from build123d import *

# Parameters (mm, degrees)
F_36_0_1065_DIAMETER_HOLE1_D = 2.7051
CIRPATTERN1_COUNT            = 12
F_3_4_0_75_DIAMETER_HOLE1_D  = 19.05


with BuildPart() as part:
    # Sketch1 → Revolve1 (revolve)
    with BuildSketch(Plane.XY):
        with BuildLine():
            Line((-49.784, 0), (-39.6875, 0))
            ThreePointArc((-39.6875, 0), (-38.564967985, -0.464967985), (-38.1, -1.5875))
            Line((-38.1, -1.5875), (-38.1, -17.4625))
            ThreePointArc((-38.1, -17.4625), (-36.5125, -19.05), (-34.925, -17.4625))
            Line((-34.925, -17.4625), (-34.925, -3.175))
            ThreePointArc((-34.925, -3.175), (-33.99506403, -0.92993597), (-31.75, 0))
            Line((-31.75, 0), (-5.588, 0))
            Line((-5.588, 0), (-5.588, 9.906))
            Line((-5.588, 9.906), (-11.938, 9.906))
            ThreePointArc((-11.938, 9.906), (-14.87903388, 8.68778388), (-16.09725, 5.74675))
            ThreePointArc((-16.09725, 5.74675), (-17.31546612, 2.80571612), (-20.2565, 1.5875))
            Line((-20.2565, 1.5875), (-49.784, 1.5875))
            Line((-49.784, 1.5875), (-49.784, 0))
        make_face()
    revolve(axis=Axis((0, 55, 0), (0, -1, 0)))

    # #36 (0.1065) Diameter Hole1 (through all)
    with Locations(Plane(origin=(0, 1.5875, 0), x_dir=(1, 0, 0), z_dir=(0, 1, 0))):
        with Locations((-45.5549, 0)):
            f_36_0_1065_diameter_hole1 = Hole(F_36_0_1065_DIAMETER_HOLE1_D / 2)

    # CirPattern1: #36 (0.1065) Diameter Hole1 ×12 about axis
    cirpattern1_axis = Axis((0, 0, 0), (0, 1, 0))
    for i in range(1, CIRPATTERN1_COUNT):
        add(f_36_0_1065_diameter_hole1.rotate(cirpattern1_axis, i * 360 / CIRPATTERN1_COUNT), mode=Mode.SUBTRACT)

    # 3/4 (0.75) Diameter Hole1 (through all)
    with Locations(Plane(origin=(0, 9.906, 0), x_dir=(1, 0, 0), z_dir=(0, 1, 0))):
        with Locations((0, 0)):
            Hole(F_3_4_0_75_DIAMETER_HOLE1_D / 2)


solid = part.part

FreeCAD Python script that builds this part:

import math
import FreeCAD as App
import Part
import Sketcher
from FreeCAD import Vector
Q = App.Units.Quantity

doc = App.newDocument("Part")
body = doc.addObject("PartDesign::Body", "Body")

# Sketch on XY plane
sketch1 = body.newObject("Sketcher::SketchObject", "Sketch")
sketch1.AttachmentSupport = (doc.getObject("XY_Plane"), [""])
sketch1.MapMode = "FlatFace"
sketch1.addGeometry(Part.LineSegment(Vector(-49.784, 0, 0), Vector(-39.6875, 0, 0)), False)
sketch1.addGeometry(Part.ArcOfCircle(Part.Circle(Vector(-39.6875, -1.5875, 0), Vector(0, 0, 1), 1.5875), math.radians(0), math.radians(90)), False)
sketch1.addGeometry(Part.LineSegment(Vector(-38.1, -1.5875, 0), Vector(-38.1, -17.4625, 0)), False)
sketch1.addGeometry(Part.ArcOfCircle(Part.Circle(Vector(-36.5125, -17.4625, 0), Vector(0, 0, 1), 1.5875), math.radians(180), math.radians(360)), False)
sketch1.addGeometry(Part.LineSegment(Vector(-34.925, -17.4625, 0), Vector(-34.925, -3.175, 0)), False)
sketch1.addGeometry(Part.ArcOfCircle(Part.Circle(Vector(-31.75, -3.175, 0), Vector(0, 0, 1), 3.175), math.radians(90), math.radians(180)), False)
sketch1.addGeometry(Part.LineSegment(Vector(-31.75, 0, 0), Vector(-5.588, 0, 0)), False)
sketch1.addGeometry(Part.LineSegment(Vector(-5.588, 0, 0), Vector(-5.588, 9.906, 0)), False)
sketch1.addGeometry(Part.LineSegment(Vector(-5.588, 9.906, 0), Vector(-11.938, 9.906, 0)), False)
sketch1.addGeometry(Part.ArcOfCircle(Part.Circle(Vector(-11.938, 5.74675, 0), Vector(0, 0, 1), 4.15925), math.radians(90), math.radians(180)), False)
sketch1.addGeometry(Part.ArcOfCircle(Part.Circle(Vector(-20.2565, 5.74675, 0), Vector(0, 0, 1), 4.15925), math.radians(-90), math.radians(0)), False)
sketch1.addGeometry(Part.LineSegment(Vector(-20.2565, 1.5875, 0), Vector(-49.784, 1.5875, 0)), False)
sketch1.addGeometry(Part.LineSegment(Vector(-49.784, 1.5875, 0), Vector(-49.784, 0, 0)), False)
sketch1.addConstraint(Sketcher.Constraint("Tangent", 0, 2, 1, 2))
sketch1.addConstraint(Sketcher.Constraint("Tangent", 1, 1, 2, 1))
sketch1.addConstraint(Sketcher.Constraint("Tangent", 2, 2, 3, 1))
sketch1.addConstraint(Sketcher.Constraint("Tangent", 3, 2, 4, 1))
sketch1.addConstraint(Sketcher.Constraint("Tangent", 4, 2, 5, 2))
sketch1.addConstraint(Sketcher.Constraint("Tangent", 5, 1, 6, 1))
sketch1.addConstraint(Sketcher.Constraint("Coincident", 6, 2, 7, 1))
sketch1.addConstraint(Sketcher.Constraint("Coincident", 7, 2, 8, 1))
sketch1.addConstraint(Sketcher.Constraint("Tangent", 8, 2, 9, 1))
sketch1.addConstraint(Sketcher.Constraint("Tangent", 9, 2, 10, 2))
sketch1.addConstraint(Sketcher.Constraint("Tangent", 10, 1, 11, 1))
sketch1.addConstraint(Sketcher.Constraint("Coincident", 11, 2, 12, 1))
sketch1.addConstraint(Sketcher.Constraint("Coincident", 12, 2, 0, 1))
sketch1.addConstraint(Sketcher.Constraint("Horizontal", 0))
sketch1.addConstraint(Sketcher.Constraint("Vertical", 2))
sketch1.addConstraint(Sketcher.Constraint("Vertical", 4))
sketch1.addConstraint(Sketcher.Constraint("Horizontal", 6))
sketch1.addConstraint(Sketcher.Constraint("Vertical", 7))
sketch1.addConstraint(Sketcher.Constraint("Horizontal", 8))
sketch1.addConstraint(Sketcher.Constraint("Horizontal", 11))
sketch1.addConstraint(Sketcher.Constraint("Vertical", 12))
sketch1.addConstraint(Sketcher.Constraint("Equal", 1, 3))
sketch1.addConstraint(Sketcher.Constraint("Equal", 9, 10))
sketch1.addConstraint(Sketcher.Constraint("PointOnObject", 0, 2, -1))
sketch1.addConstraint(Sketcher.Constraint("PointOnObject", 5, 1, -1))
sketch1.addConstraint(Sketcher.Constraint("Horizontal", 9, 3, 10, 3))
sketch1.addConstraint(Sketcher.Constraint("Radius", 1, Q("0.0625 in")))
sketch1.addConstraint(Sketcher.Constraint("Radius", 5, Q("0.125 in")))
sketch1.addConstraint(Sketcher.Constraint("DistanceX", 6, 1, 6, 2, Q("1.03 in")))
sketch1.addConstraint(Sketcher.Constraint("DistanceX", 8, 2, 8, 1, Q("0.25 in")))
sketch1.addConstraint(Sketcher.Constraint("DistanceY", 7, 1, 7, 2, Q("0.39 in")))
sketch1.addConstraint(Sketcher.Constraint("DistanceX", 1, 1, -1, 1, Q("1.5 in")))
sketch1.addConstraint(Sketcher.Constraint("DistanceY", 2, 2, 2, 1, Q("0.625 in")))
sketch1.addConstraint(Sketcher.Constraint("DistanceY", 12, 2, 12, 1, Q("0.0625 in")))
sketch1.addConstraint(Sketcher.Constraint("DistanceX", 11, 2, -1, 1, Q("1.96 in")))
revolution = body.newObject("PartDesign::Revolution", "Revolution")
revolution.Profile = sketch1
revolution.ReferenceAxis = (sketch1, ["V_Axis"])
revolution.Angle = 360

# Sketch on XZ plane
sketch2 = body.newObject("Sketcher::SketchObject", "Sketch001")
sketch2.AttachmentSupport = (doc.getObject("XZ_Plane"), [""])
sketch2.MapMode = "FlatFace"
sketch2.AttachmentOffset = App.Placement(Vector(0, 0, -0.0625 * 25.4), App.Rotation())
sketch2.addGeometry(Part.Circle(Vector(-45.5549, 0, 0), Vector(0, 0, 1), 1.35255), False)
sketch2.addConstraint(Sketcher.Constraint("PointOnObject", 0, 3, -1))
sketch2.addConstraint(Sketcher.Constraint("Diameter", 0, Q("0.1065 in")))
sketch2.addConstraint(Sketcher.Constraint("DistanceX", 0, 3, -1, 1, Q("1.7935 in")))
doc.recompute()
hole = body.newObject("PartDesign::Hole", "Hole")
hole.Profile = sketch2
hole.ThreadType = "None"
hole.Diameter = Q("0.1065 in")
hole.DepthType = "ThroughAll"
hole.Reversed = True
doc.recompute()

polarpattern = body.newObject("PartDesign::PolarPattern", "PolarPattern")
polarpattern.Originals = [hole]
polarpattern.Axis = (doc.getObject("Y_Axis"), [""])
polarpattern.Angle = 360
polarpattern.Occurrences = 12
body.Tip = polarpattern

# Sketch on XZ plane
sketch3 = body.newObject("Sketcher::SketchObject", "Sketch002")
sketch3.AttachmentSupport = (doc.getObject("XZ_Plane"), [""])
sketch3.MapMode = "FlatFace"
sketch3.AttachmentOffset = App.Placement(Vector(0, 0, -0.39 * 25.4), App.Rotation())
sketch3.addGeometry(Part.Circle(Vector(0, 0, 0), Vector(0, 0, 1), 9.525), False)
sketch3.addConstraint(Sketcher.Constraint("Coincident", 0, 3, -1, 1))
sketch3.addConstraint(Sketcher.Constraint("Diameter", 0, Q("0.75 in")))
doc.recompute()
hole2 = body.newObject("PartDesign::Hole", "Hole001")
hole2.Profile = sketch3
hole2.ThreadType = "None"
hole2.Diameter = Q("0.75 in")
hole2.DepthType = "ThroughAll"
hole2.Reversed = True

doc.recompute()
